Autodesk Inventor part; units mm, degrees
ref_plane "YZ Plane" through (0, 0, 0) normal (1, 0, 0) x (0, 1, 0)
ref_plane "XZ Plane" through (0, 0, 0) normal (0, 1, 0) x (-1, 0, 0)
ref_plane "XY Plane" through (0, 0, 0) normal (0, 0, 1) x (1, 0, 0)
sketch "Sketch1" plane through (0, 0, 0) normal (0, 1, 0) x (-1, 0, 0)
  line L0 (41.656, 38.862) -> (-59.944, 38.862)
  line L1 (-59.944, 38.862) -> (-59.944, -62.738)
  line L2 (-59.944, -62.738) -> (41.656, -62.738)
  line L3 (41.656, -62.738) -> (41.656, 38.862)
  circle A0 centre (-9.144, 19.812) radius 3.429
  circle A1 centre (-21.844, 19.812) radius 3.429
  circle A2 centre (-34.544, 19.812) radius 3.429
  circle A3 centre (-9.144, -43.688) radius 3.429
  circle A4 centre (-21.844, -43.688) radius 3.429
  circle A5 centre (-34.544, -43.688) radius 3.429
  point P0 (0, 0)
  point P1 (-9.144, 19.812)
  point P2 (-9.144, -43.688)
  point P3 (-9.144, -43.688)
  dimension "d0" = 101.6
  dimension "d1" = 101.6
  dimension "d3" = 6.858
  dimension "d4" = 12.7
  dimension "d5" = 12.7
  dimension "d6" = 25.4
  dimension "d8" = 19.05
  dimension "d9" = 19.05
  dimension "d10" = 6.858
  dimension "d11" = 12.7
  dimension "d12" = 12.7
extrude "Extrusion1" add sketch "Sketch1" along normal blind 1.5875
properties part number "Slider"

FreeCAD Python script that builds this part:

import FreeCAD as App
import Part
import Sketcher

V = App.Vector
Q = App.Units.Quantity

doc = App.newDocument("Part")
body = doc.addObject("PartDesign::Body", "Body")

# Sketch on XZ plane
sketch1 = body.newObject("Sketcher::SketchObject", "Sketch")
sketch1.AttachmentSupport = (doc.getObject("XZ_Plane"), [""])
sketch1.MapMode = "FlatFace"
sketch1.addGeometry([
    Part.LineSegment(V(-41.7, -62.7, 0), V(-41.7, 38.9, 0)),  # 0
    Part.LineSegment(V(-41.7, 38.9, 0), V(59.9, 38.9, 0)),  # 1
    Part.LineSegment(V(59.9, 38.9, 0), V(59.9, -62.7, 0)),  # 2
    Part.LineSegment(V(59.9, -62.7, 0), V(-41.7, -62.7, 0)),  # 3
    Part.Circle(V(34.5, -43.7, 0), V(0, 0, 1), 3.4),  # 4
    Part.Circle(V(21.8, -43.7, 0), V(0, 0, 1), 3.4),  # 5
    Part.Circle(V(9.1, -43.7, 0), V(0, 0, 1), 3.4),  # 6
    Part.Circle(V(34.5, 19.8, 0), V(0, 0, 1), 3.4),  # 7
    Part.Circle(V(21.8, 19.8, 0), V(0, 0, 1), 3.4),  # 8
    Part.Circle(V(9.1, 19.8, 0), V(0, 0, 1), 3.4),  # 9
], False)
sketch1.addConstraint([
    Sketcher.Constraint("Coincident", 0, 2, 1, 1),
    Sketcher.Constraint("Coincident", 1, 2, 2, 1),
    Sketcher.Constraint("Coincident", 2, 2, 3, 1),
    Sketcher.Constraint("Coincident", 3, 2, 0, 1),
    Sketcher.Constraint("Vertical", 0),
    Sketcher.Constraint("Horizontal", 1),
    Sketcher.Constraint("Vertical", 2),
    Sketcher.Constraint("Horizontal", 3),
    Sketcher.Constraint("Equal", 4, 5),
    Sketcher.Constraint("Equal", 5, 6),
    Sketcher.Constraint("Equal", 6, 7),
    Sketcher.Constraint("Equal", 7, 8),
    Sketcher.Constraint("Equal", 8, 9),
    Sketcher.Constraint("Horizontal", 4, 3, 5, 3),
    Sketcher.Constraint("Horizontal", 5, 3, 6, 3),
    Sketcher.Constraint("Horizontal", 7, 3, 8, 3),
    Sketcher.Constraint("Horizontal", 8, 3, 9, 3),
    Sketcher.Constraint("Vertical", 4, 3, 7, 3),
    Sketcher.Constraint("Vertical", 5, 3, 8, 3),
    Sketcher.Constraint("Vertical", 6, 3, 9, 3),
    Sketcher.Constraint("Equal", 3, 0),
    Sketcher.Constraint("Diameter", 4, Q("0.27 in")),
    Sketcher.Constraint("DistanceX", 1, 1, 1, 2, Q("4 in")),
    Sketcher.Constraint("DistanceX", 6, 3, 4, 3, Q("1 in")),
    Sketcher.Constraint("DistanceX", 7, 3, 1, 2, Q("1 in")),
    Sketcher.Constraint("DistanceX", 5, 3, 4, 3, Q("0.5 in")),
    Sketcher.Constraint("DistanceY", 9, 3, 0, 2, Q("0.75 in")),
    Sketcher.Constraint("DistanceY", 2, 2, 4, 3, Q("0.75 in")),
    Sketcher.Constraint("DistanceX", -1, 1, 4, 3, Q("1.36 in")),
    Sketcher.Constraint("DistanceY", 4, 3, -1, 1, Q("1.72 in")),
])
pad1 = body.newObject("PartDesign::Pad", "Pad")
pad1.Profile = sketch1
pad1.Length = Q("0.0625 in")
pad1.Reversed = True

doc.recompute()
